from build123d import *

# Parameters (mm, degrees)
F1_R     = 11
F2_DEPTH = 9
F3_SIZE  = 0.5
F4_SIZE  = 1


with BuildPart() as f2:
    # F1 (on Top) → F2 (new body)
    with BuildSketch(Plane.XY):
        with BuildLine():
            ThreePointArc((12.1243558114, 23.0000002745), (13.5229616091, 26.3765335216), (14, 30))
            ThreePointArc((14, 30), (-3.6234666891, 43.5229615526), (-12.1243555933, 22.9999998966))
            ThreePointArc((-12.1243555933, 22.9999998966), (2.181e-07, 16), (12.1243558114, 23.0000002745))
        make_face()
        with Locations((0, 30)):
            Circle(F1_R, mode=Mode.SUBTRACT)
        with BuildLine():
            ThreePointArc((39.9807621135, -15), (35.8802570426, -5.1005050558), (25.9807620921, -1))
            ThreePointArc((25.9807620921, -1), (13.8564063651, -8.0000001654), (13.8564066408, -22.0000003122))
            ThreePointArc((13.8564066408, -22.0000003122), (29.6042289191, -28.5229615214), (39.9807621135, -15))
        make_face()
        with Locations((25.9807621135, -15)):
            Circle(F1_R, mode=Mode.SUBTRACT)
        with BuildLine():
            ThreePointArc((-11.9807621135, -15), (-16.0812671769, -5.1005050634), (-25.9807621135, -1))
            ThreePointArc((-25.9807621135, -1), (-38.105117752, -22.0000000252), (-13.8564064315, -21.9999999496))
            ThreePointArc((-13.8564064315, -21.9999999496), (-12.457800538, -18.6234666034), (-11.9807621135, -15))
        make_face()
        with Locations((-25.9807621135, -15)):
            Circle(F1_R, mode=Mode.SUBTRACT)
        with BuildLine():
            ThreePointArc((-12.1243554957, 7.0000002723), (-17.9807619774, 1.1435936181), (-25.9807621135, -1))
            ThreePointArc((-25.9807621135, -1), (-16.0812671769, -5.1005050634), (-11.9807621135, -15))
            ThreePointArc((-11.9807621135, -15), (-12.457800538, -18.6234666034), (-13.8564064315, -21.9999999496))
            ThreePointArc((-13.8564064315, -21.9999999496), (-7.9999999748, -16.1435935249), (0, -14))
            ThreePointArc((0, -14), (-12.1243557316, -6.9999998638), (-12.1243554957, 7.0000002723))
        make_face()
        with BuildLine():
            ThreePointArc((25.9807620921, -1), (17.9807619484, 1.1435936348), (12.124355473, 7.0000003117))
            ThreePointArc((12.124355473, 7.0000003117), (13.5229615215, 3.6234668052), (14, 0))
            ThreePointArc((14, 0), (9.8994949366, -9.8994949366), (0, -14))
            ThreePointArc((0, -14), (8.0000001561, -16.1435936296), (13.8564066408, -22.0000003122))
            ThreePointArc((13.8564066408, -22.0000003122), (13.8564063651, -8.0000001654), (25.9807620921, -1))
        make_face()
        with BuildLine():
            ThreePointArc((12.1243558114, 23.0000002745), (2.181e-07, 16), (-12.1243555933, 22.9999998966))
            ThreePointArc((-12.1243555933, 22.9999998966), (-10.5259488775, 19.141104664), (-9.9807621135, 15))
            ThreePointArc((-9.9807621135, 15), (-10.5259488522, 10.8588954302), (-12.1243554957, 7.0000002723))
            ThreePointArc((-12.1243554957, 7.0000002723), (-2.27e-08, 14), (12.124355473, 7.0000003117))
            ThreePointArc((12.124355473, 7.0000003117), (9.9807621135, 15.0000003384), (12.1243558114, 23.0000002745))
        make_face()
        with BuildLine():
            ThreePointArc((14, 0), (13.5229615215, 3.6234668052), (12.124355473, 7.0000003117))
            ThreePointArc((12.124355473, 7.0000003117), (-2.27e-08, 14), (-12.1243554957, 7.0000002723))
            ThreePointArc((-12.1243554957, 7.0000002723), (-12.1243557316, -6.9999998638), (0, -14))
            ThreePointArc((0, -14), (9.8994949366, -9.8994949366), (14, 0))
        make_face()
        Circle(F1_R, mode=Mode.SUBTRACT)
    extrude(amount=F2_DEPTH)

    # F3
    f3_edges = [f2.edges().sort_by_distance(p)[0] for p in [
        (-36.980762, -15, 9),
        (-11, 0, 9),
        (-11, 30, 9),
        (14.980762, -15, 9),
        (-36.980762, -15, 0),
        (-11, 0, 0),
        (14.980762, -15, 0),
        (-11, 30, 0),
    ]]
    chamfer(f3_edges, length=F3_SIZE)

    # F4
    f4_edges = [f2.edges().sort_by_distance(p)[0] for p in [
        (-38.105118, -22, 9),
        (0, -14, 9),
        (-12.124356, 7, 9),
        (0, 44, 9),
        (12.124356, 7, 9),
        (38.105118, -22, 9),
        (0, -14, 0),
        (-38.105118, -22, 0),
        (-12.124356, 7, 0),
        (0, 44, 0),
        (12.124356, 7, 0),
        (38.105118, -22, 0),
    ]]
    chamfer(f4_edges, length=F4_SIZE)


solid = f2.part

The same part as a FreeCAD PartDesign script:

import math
import FreeCAD as App
import Part
import Sketcher

V = App.Vector


def edges_at(feature, points):
    """Names of the edges that pass closest to the given points."""
    edges = feature.Shape.Edges
    near = lambda p: min(range(len(edges)), key=lambda i: edges[i].distToShape(Part.Vertex(*p))[0])
    return sorted({f"Edge{near(p) + 1}" for p in points})

doc = App.newDocument("Part")
body = doc.addObject("PartDesign::Body", "Body")

sketch1 = body.newObject("Sketcher::SketchObject", "Sketch")
sketch1.AttachmentSupport = (doc.getObject("XY_Plane"), [""])
sketch1.MapMode = "FlatFace"
sketch1.addGeometry(Part.ArcOfCircle(Part.Circle(V(0, 30, 0), V(0, 0, 1), 14), math.radians(-30), math.radians(0)), False)
sketch1.addGeometry(Part.ArcOfCircle(Part.Circle(V(0, 30, 0), V(0, 0, 1), 14), math.radians(0), math.radians(210)), False)
sketch1.addGeometry(Part.ArcOfCircle(Part.Circle(V(-26, 15, 0), V(0, 0, 1), 16), math.radians(0), math.radians(30)), False)
sketch1.addGeometry(Part.ArcOfCircle(Part.Circle(V(-26, 15, 0), V(0, 0, 1), 16), math.radians(-30), math.radians(0)), False)
sketch1.addGeometry(Part.ArcOfCircle(Part.Circle(V(-26, 15, 0), V(0, 0, 1), 16), math.radians(-90), math.radians(-30)), False)
sketch1.addGeometry(Part.ArcOfCircle(Part.Circle(V(-26, -15, 0), V(0, 0, 1), 14), math.radians(90), math.radians(330)), False)
sketch1.addGeometry(Part.ArcOfCircle(Part.Circle(V(0, -30, 0), V(0, 0, 1), 16), math.radians(90), math.radians(150)), False)
sketch1.addGeometry(Part.ArcOfCircle(Part.Circle(V(0, -30, 0), V(0, 0, 1), 16), math.radians(30), math.radians(90)), False)
sketch1.addGeometry(Part.ArcOfCircle(Part.Circle(V(26, -15, 0), V(0, 0, 1), 14), math.radians(-150), math.radians(0)), False)
sketch1.addGeometry(Part.ArcOfCircle(Part.Circle(V(26, -15, 0), V(0, 0, 1), 14), math.radians(0), math.radians(90)), False)
sketch1.addGeometry(Part.ArcOfCircle(Part.Circle(V(26, 15, 0), V(0, 0, 1), 16), math.radians(-150), math.radians(-90)), False)
sketch1.addGeometry(Part.ArcOfCircle(Part.Circle(V(26, 15, 0), V(0, 0, 1), 16), math.radians(150), math.radians(210)), False)
sketch1.addGeometry(Part.Circle(V(-26, -15, 0), V(0, 0, 1), 11), False)
sketch1.addGeometry(Part.Circle(V(26, -15, 0), V(0, 0, 1), 11), False)
sketch1.addGeometry(Part.Circle(V(0, 0, 0), V(0, 0, 1), 11), False)
sketch1.addGeometry(Part.Circle(V(0, 30, 0), V(0, 0, 1), 11), False)
sketch1.addConstraint(Sketcher.Constraint("Tangent", 0, 2, 1, 1))
sketch1.addConstraint(Sketcher.Constraint("Tangent", 1, 2, 2, 2))
sketch1.addConstraint(Sketcher.Constraint("Tangent", 2, 1, 3, 2))
sketch1.addConstraint(Sketcher.Constraint("Tangent", 3, 1, 4, 2))
sketch1.addConstraint(Sketcher.Constraint("Tangent", 4, 1, 5, 1))
sketch1.addConstraint(Sketcher.Constraint("Tangent", 5, 2, 6, 2))
sketch1.addConstraint(Sketcher.Constraint("Tangent", 6, 1, 7, 2))
sketch1.addConstraint(Sketcher.Constraint("Tangent", 7, 1, 8, 1))
sketch1.addConstraint(Sketcher.Constraint("Tangent", 8, 2, 9, 1))
sketch1.addConstraint(Sketcher.Constraint("Tangent", 9, 2, 10, 2))
sketch1.addConstraint(Sketcher.Constraint("Tangent", 10, 1, 11, 2))
sketch1.addConstraint(Sketcher.Constraint("Tangent", 11, 1, 0, 1))
sketch1.addConstraint(Sketcher.Constraint("Coincident", 14, 3, -1, 1))
sketch1.addConstraint(Sketcher.Constraint("Coincident", 4, 3, 2, 3))
sketch1.addConstraint(Sketcher.Constraint("Coincident", 12, 3, 5, 3))
sketch1.addConstraint(Sketcher.Constraint("Coincident", 13, 3, 8, 3))
sketch1.addConstraint(Sketcher.Constraint("Coincident", 15, 3, 0, 3))
sketch1.addConstraint(Sketcher.Constraint("Equal", 0, 1))
sketch1.addConstraint(Sketcher.Constraint("Equal", 1, 5))
sketch1.addConstraint(Sketcher.Constraint("Equal", 4, 6))
sketch1.addConstraint(Sketcher.Constraint("Equal", 6, 7))
sketch1.addConstraint(Sketcher.Constraint("Equal", 5, 8))
sketch1.addConstraint(Sketcher.Constraint("Equal", 8, 9))
sketch1.addConstraint(Sketcher.Constraint("Equal", 7, 10))
sketch1.addConstraint(Sketcher.Constraint("Equal", 10, 11))
sketch1.addConstraint(Sketcher.Constraint("Equal", 12, 13))
sketch1.addConstraint(Sketcher.Constraint("Equal", 13, 14))
sketch1.addConstraint(Sketcher.Constraint("Equal", 14, 15))
sketch1.addConstraint(Sketcher.Constraint("Symmetric", 0, 3, 6, 3, -1, 1))
sketch1.addConstraint(Sketcher.Constraint("Symmetric", 5, 3, 8, 3, -2))
sketch1.addConstraint(Sketcher.Constraint("PointOnObject", 6, 1, -2))
sketch1.addConstraint(Sketcher.Constraint("Horizontal", 15, 3, 0, 2))
sketch1.addConstraint(Sketcher.Constraint("Horizontal", 11, 3, 2, 1))
sketch1.addConstraint(Sketcher.Constraint("Horizontal", 13, 3, 8, 2))
sketch1.addConstraint(Sketcher.Constraint("Horizontal", 3, 1, 10, 1))
sketch1.addConstraint(Sketcher.Constraint("Vertical", 4, 3, 5, 3))
sketch1.addConstraint(Sketcher.Constraint("Vertical", 1, 2, 3, 1))
sketch1.addConstraint(Sketcher.Constraint("Diameter", 12, 22.0))
sketch1.addConstraint(Sketcher.Constraint("Radius", 0, 14.0))
sketch1.addConstraint(Sketcher.Constraint("Radius", 2, 16.0))
sketch1.addConstraint(Sketcher.Constraint("DistanceY", -1, 1, 0, 3, 30.0))
pad1 = body.newObject("PartDesign::Pad", "Pad")
pad1.Profile = sketch1
pad1.Length = 9
doc.recompute()

chamfer = body.newObject("PartDesign::Chamfer", "Chamfer")
chamfer.Base = (pad1, edges_at(pad1, [
    (-36.981, -15, 9),
    (-11, 0, 9),
    (-11, 30, 9),
    (14.981, -15, 9),
    (-36.981, -15, 0),
    (-11, 0, 0),
    (14.981, -15, 0),
    (-11, 30, 0),
]))
chamfer.Size = 0.5
doc.recompute()

chamfer2 = body.newObject("PartDesign::Chamfer", "Chamfer001")
chamfer2.Base = (chamfer, edges_at(chamfer, [
    (-38.105, -22, 9),
    (8, -16.144, 9),
    (-17.981, 1.144, 9),
    (-3.623, 43.523, 9),
    (17.981, 1.144, 9),
    (29.604, -28.523, 9),
    (8, -16.144, 0),
    (-38.105, -22, 0),
    (-17.981, 1.144, 0),
    (-3.623, 43.523, 0),
    (17.981, 1.144, 0),
    (29.604, -28.523, 0),
]))
chamfer2.Size = 1

doc.recompute()
